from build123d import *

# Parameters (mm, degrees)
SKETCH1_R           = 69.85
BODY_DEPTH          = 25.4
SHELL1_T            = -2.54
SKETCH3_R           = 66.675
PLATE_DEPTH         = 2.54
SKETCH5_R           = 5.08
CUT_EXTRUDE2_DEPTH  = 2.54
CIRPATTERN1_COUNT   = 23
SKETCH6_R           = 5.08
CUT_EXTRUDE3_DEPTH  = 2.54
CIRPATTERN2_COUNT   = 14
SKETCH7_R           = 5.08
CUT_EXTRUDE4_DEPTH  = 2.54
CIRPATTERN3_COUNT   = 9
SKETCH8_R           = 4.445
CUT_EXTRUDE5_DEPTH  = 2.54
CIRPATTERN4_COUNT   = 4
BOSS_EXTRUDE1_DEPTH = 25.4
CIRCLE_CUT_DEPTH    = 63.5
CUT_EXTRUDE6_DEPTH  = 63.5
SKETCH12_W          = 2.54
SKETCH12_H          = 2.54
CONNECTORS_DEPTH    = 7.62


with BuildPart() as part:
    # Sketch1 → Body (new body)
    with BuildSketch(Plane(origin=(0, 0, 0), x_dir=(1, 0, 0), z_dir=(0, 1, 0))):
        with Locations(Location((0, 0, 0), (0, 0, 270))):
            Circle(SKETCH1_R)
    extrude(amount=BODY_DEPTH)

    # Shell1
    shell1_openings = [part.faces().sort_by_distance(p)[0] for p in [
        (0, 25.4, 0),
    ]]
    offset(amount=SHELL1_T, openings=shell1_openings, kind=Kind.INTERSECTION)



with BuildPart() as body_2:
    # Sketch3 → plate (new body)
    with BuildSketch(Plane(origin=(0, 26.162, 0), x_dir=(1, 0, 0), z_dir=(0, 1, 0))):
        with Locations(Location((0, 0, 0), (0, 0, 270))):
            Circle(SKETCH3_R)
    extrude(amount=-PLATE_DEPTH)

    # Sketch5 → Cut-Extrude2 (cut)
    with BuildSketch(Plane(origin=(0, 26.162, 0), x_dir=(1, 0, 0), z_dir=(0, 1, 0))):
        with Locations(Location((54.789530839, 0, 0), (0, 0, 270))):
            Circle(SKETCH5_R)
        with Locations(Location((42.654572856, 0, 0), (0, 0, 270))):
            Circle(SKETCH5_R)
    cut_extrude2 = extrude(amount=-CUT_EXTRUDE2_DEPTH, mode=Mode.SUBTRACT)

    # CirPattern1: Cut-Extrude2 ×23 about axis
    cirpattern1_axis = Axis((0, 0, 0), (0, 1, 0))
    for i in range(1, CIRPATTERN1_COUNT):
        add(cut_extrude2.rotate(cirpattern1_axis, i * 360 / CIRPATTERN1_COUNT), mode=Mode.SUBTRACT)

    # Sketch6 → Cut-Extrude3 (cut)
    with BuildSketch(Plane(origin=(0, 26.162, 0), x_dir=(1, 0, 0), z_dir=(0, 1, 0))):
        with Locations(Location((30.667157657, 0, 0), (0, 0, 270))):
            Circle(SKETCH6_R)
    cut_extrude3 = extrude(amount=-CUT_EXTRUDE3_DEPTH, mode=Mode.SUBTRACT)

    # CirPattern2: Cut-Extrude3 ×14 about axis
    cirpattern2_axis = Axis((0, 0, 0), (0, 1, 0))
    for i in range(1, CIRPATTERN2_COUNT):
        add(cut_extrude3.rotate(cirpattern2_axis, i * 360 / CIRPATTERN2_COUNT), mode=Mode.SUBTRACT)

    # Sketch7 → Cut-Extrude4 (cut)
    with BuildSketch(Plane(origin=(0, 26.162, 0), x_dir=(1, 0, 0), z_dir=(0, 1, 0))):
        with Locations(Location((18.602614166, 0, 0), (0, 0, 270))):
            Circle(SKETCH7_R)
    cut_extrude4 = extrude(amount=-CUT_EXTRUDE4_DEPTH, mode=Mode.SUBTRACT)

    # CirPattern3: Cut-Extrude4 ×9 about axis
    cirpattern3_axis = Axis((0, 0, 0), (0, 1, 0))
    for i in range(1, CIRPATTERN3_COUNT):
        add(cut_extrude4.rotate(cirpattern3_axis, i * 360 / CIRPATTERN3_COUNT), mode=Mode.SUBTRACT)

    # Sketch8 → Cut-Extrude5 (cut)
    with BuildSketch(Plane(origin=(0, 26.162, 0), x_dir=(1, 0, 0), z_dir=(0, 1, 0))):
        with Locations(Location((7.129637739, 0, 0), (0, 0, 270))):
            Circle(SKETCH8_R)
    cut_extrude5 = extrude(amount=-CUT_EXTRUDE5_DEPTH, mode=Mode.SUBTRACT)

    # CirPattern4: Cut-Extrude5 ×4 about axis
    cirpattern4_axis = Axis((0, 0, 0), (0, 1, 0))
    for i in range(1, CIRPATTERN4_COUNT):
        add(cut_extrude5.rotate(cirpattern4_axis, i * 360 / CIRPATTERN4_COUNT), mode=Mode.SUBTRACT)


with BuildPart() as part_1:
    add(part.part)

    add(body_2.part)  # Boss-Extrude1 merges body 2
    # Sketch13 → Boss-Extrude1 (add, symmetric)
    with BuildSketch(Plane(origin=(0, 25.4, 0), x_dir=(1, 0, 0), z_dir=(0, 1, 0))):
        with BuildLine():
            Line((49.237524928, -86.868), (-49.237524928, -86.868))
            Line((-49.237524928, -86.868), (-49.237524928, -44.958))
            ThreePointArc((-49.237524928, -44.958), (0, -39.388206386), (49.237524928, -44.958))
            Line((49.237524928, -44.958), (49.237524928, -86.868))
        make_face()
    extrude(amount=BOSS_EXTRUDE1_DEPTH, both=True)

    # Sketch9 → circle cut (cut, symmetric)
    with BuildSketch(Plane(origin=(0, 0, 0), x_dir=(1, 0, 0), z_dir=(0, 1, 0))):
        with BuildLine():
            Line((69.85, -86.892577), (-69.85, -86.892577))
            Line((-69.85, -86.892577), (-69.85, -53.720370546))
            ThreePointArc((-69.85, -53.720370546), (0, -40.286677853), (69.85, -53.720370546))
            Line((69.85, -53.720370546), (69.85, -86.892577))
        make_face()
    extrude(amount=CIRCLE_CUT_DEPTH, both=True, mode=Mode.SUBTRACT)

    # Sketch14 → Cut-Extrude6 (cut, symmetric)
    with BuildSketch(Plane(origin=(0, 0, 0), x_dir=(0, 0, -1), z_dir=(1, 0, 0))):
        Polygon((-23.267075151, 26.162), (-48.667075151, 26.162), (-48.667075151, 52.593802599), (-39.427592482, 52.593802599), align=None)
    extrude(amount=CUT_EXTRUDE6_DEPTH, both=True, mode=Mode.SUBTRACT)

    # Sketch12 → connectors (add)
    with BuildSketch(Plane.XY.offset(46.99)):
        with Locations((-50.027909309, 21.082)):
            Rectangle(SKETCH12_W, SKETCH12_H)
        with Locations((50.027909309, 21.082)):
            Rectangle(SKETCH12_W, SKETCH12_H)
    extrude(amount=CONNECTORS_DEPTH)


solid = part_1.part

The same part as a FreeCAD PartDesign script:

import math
import FreeCAD as App
import Part
import Sketcher
Q = App.Units.Quantity


def faces_at(feature, points):
    """Names of the faces that lie closest to the given points."""
    faces = feature.Shape.Faces
    near = lambda p: min(range(len(faces)), key=lambda i: faces[i].distToShape(Part.Vertex(*p))[0])
    return sorted({f"Face{near(p) + 1}" for p in points})

doc = App.newDocument("Part")
body = doc.addObject("PartDesign::Body", "Body")

sketch1 = body.newObject("Sketcher::SketchObject", "Sketch")
sketch1.AttachmentSupport = (doc.getObject("XZ_Plane"), [""])
sketch1.MapMode = "FlatFace"
sketch1.addGeometry(Part.Circle(App.Vector(0, 0, 0), App.Vector(0, 0, 1), 70), False)
sketch1.addConstraint([
    Sketcher.Constraint("Coincident", 0, 3, -1, 1),
    Sketcher.Constraint("Diameter", 0, Q("5.5 in")),
])
pad1 = body.newObject("PartDesign::Pad", "Pad")
pad1.Profile = sketch1
pad1.Length = Q("1 in")
pad1.Reversed = True
doc.recompute()

thickness = body.newObject("PartDesign::Thickness", "Thickness")
thickness.Base = (pad1, faces_at(pad1, [(0, 25.4, 0)]))
thickness.Value = Q("0.1 in")
thickness.Reversed = True
thickness.Join = "Intersection"
body2 = doc.addObject("PartDesign::Body", "Body001")

sketch2 = body2.newObject("Sketcher::SketchObject", "Sketch001")
sketch2.AttachmentSupport = (doc.getObject("XZ_Plane001"), [""])
sketch2.MapMode = "FlatFace"
sketch2.AttachmentOffset = App.Placement(App.Vector(0, 0, -1.03 * 25.4), App.Rotation())
sketch2.addGeometry(Part.Circle(App.Vector(0, 0, 0), App.Vector(0, 0, 1), 67), False)
sketch2.addConstraint([
    Sketcher.Constraint("Coincident", 0, 3, -1, 1),
    Sketcher.Constraint("Diameter", 0, Q("5.25 in")),
])
pad2 = body2.newObject("PartDesign::Pad", "Pad001")
pad2.Profile = sketch2
pad2.Length = Q("0.1 in")

sketch3 = body2.newObject("Sketcher::SketchObject", "Sketch002")
sketch3.AttachmentSupport = (doc.getObject("XZ_Plane001"), [""])
sketch3.MapMode = "FlatFace"
sketch3.AttachmentOffset = App.Placement(App.Vector(0, 0, -1.03 * 25.4), App.Rotation())
sketch3.addGeometry([
    Part.Circle(App.Vector(55, 0, 0), App.Vector(0, 0, 1), 5),
    Part.Circle(App.Vector(43, 0, 0), App.Vector(0, 0, 1), 5),
], False)
sketch3.addConstraint([
    Sketcher.Constraint("Equal", 0, 1),
    Sketcher.Constraint("PointOnObject", 0, 3, -1),
    Sketcher.Constraint("PointOnObject", 1, 3, -1),
    Sketcher.Constraint("Diameter", 0, Q("0.4 in")),
    Sketcher.Constraint("DistanceX", -1, 1, 0, 3, Q("54.789531 mm")),
    Sketcher.Constraint("DistanceX", -1, 1, 1, 3, Q("42.654573 mm")),
])
pocket1 = body2.newObject("PartDesign::Pocket", "Pocket")
pocket1.Profile = sketch3
pocket1.Length = Q("0.1 in")
pocket1.Reversed = True
doc.recompute()

polarpattern = body2.newObject("PartDesign::PolarPattern", "PolarPattern")
polarpattern.Originals = [pocket1]
polarpattern.Axis = (doc.getObject("Y_Axis001"), [""])
polarpattern.Angle = 360
polarpattern.Occurrences = 23
body2.Tip = polarpattern

sketch4 = body2.newObject("Sketcher::SketchObject", "Sketch003")
sketch4.AttachmentSupport = (doc.getObject("XZ_Plane001"), [""])
sketch4.MapMode = "FlatFace"
sketch4.AttachmentOffset = App.Placement(App.Vector(0, 0, -1.03 * 25.4), App.Rotation())
sketch4.addGeometry(Part.Circle(App.Vector(31, 0, 0), App.Vector(0, 0, 1), 5), False)
sketch4.addConstraint([
    Sketcher.Constraint("PointOnObject", 0, 3, -1),
    Sketcher.Constraint("Diameter", 0, Q("0.4 in")),
    Sketcher.Constraint("DistanceX", -1, 1, 0, 3, Q("30.667158 mm")),
])
pocket2 = body2.newObject("PartDesign::Pocket", "Pocket001")
pocket2.Profile = sketch4
pocket2.Length = Q("0.1 in")
pocket2.Reversed = True
doc.recompute()

polarpattern2 = body2.newObject("PartDesign::PolarPattern", "PolarPattern001")
polarpattern2.Originals = [pocket2]
polarpattern2.Axis = (doc.getObject("Y_Axis001"), [""])
polarpattern2.Angle = 360
polarpattern2.Occurrences = 14
body2.Tip = polarpattern2

sketch5 = body2.newObject("Sketcher::SketchObject", "Sketch004")
sketch5.AttachmentSupport = (doc.getObject("XZ_Plane001"), [""])
sketch5.MapMode = "FlatFace"
sketch5.AttachmentOffset = App.Placement(App.Vector(0, 0, -1.03 * 25.4), App.Rotation())
sketch5.addGeometry(Part.Circle(App.Vector(19, 0, 0), App.Vector(0, 0, 1), 5), False)
sketch5.addConstraint([
    Sketcher.Constraint("PointOnObject", 0, 3, -1),
    Sketcher.Constraint("Diameter", 0, Q("0.4 in")),
    Sketcher.Constraint("DistanceX", -1, 1, 0, 3, Q("18.602614 mm")),
])
pocket3 = body2.newObject("PartDesign::Pocket", "Pocket002")
pocket3.Profile = sketch5
pocket3.Length = Q("0.1 in")
pocket3.Reversed = True
doc.recompute()

polarpattern3 = body2.newObject("PartDesign::PolarPattern", "PolarPattern002")
polarpattern3.Originals = [pocket3]
polarpattern3.Axis = (doc.getObject("Y_Axis001"), [""])
polarpattern3.Angle = 360
polarpattern3.Occurrences = 9
body2.Tip = polarpattern3

sketch6 = body2.newObject("Sketcher::SketchObject", "Sketch005")
sketch6.AttachmentSupport = (doc.getObject("XZ_Plane001"), [""])
sketch6.MapMode = "FlatFace"
sketch6.AttachmentOffset = App.Placement(App.Vector(0, 0, -1.03 * 25.4), App.Rotation())
sketch6.addGeometry(Part.Circle(App.Vector(7.1, 0, 0), App.Vector(0, 0, 1), 4.4), False)
sketch6.addConstraint([
    Sketcher.Constraint("PointOnObject", 0, 3, -1),
    Sketcher.Constraint("Diameter", 0, Q("0.35 in")),
    Sketcher.Constraint("DistanceX", -1, 1, 0, 3, Q("7.129638 mm")),
])
pocket4 = body2.newObject("PartDesign::Pocket", "Pocket003")
pocket4.Profile = sketch6
pocket4.Length = Q("0.1 in")
pocket4.Reversed = True
doc.recompute()

polarpattern4 = body2.newObject("PartDesign::PolarPattern", "PolarPattern003")
polarpattern4.Originals = [pocket4]
polarpattern4.Axis = (doc.getObject("Y_Axis001"), [""])
polarpattern4.Angle = 360
polarpattern4.Occurrences = 4
body2.Tip = polarpattern4
body.AllowCompound = True
doc.recompute()

boolean = body.newObject("PartDesign::Boolean", "Boolean")
boolean.Type = "Fuse"
boolean.addObjects([body2])

sketch7 = body.newObject("Sketcher::SketchObject", "Sketch006")
sketch7.AttachmentSupport = (doc.getObject("XZ_Plane"), [""])
sketch7.MapMode = "FlatFace"
sketch7.AttachmentOffset = App.Placement(App.Vector(0, 0, -1 * 25.4), App.Rotation())
sketch7.addGeometry([
    Part.LineSegment(App.Vector(-49, 87, 0), App.Vector(49, 87, 0)),
    Part.LineSegment(App.Vector(49, 87, 0), App.Vector(49, 45, 0)),
    Part.ArcOfCircle(Part.Circle(App.Vector(0, 260, 0), App.Vector(0, 0, 1), 220), math.radians(-103), math.radians(-77)),
    Part.LineSegment(App.Vector(-49, 45, 0), App.Vector(-49, 87, 0)),
], False)
sketch7.addConstraint([
    Sketcher.Constraint("Coincident", 0, 2, 1, 1),
    Sketcher.Constraint("Coincident", 1, 2, 2, 2),
    Sketcher.Constraint("Coincident", 2, 1, 3, 1),
    Sketcher.Constraint("Coincident", 3, 2, 0, 1),
    Sketcher.Constraint("Horizontal", 0),
    Sketcher.Constraint("Vertical", 1),
    Sketcher.Constraint("Vertical", 3),
    Sketcher.Constraint("Symmetric", 1, 2, 2, 1, -2),
    Sketcher.Constraint("DistanceY", 1, 2, 1, 1, Q("1.65 in")),
    Sketcher.Constraint("DistanceY", -1, 1, 0, 2, Q("3.42 in")),
    Sketcher.Constraint("Radius", 2, Q("220.417185 mm")),
    Sketcher.Constraint("DistanceX", 0, 1, 0, 2, Q("98.47505 mm")),
])
pad3 = body.newObject("PartDesign::Pad", "Pad002")
pad3.Profile = sketch7
pad3.Length = Q("2 in")
pad3.Midplane = True

sketch8 = body.newObject("Sketcher::SketchObject", "Sketch007")
sketch8.AttachmentSupport = (doc.getObject("XZ_Plane"), [""])
sketch8.MapMode = "FlatFace"
sketch8.addGeometry([
    Part.LineSegment(App.Vector(-70, 87, 0), App.Vector(70, 87, 0)),
    Part.LineSegment(App.Vector(70, 87, 0), App.Vector(70, 54, 0)),
    Part.ArcOfCircle(Part.Circle(App.Vector(0, 229, 0), App.Vector(0, 0, 1), 188), math.radians(-112), math.radians(-68)),
    Part.LineSegment(App.Vector(-70, 54, 0), App.Vector(-70, 87, 0)),
], False)
sketch8.addConstraint([
    Sketcher.Constraint("Coincident", 0, 2, 1, 1),
    Sketcher.Constraint("Coincident", 1, 2, 2, 2),
    Sketcher.Constraint("Coincident", 2, 1, 3, 1),
    Sketcher.Constraint("Coincident", 3, 2, 0, 1),
    Sketcher.Constraint("Horizontal", 0),
    Sketcher.Constraint("Vertical", 1),
    Sketcher.Constraint("Vertical", 3),
    Sketcher.Constraint("Symmetric", 1, 2, 2, 1, -2),
    Sketcher.Constraint("DistanceX", 0, 1, 0, 2, Q("5.5 in")),
    Sketcher.Constraint("DistanceY", -1, 1, 2, 3, Q("9 in")),
    Sketcher.Constraint("Radius", 2, Q("188.313322 mm")),
    Sketcher.Constraint("DistanceY", 1, 2, 1, 1, Q("33.172206 mm")),
])
pocket5 = body.newObject("PartDesign::Pocket", "Pocket004")
pocket5.Profile = sketch8
pocket5.Length = Q("5 in")
pocket5.Midplane = True

sketch9 = body.newObject("Sketcher::SketchObject", "Sketch008")
sketch9.AttachmentSupport = (doc.getObject("YZ_Plane"), [""])
sketch9.MapMode = "FlatFace"
sketch9.addGeometry([
    Part.LineSegment(App.Vector(26, 49, 0), App.Vector(26, 23, 0)),
    Part.LineSegment(App.Vector(26, 23, 0), App.Vector(53, 39, 0)),
    Part.LineSegment(App.Vector(53, 39, 0), App.Vector(53, 49, 0)),
    Part.LineSegment(App.Vector(53, 49, 0), App.Vector(26, 49, 0)),
], False)
sketch9.addConstraint([
    Sketcher.Constraint("Coincident", 0, 2, 1, 1),
    Sketcher.Constraint("Coincident", 1, 2, 2, 1),
    Sketcher.Constraint("Coincident", 2, 2, 3, 1),
    Sketcher.Constraint("Coincident", 3, 2, 0, 1),
    Sketcher.Constraint("Vertical", 0),
    Sketcher.Constraint("Vertical", 2),
    Sketcher.Constraint("Horizontal", 3),
    Sketcher.Constraint("DistanceY", 0, 2, 0, 1, Q("1 in")),
    Sketcher.Constraint("DistanceX", -1, 1, 0, 2, Q("1.03 in")),
    Sketcher.Constraint("Distance", 1, Q("30.98068 mm")),
    Sketcher.Constraint("DistanceX", 3, 2, 3, 1, Q("26.431803 mm")),
    Sketcher.Constraint("DistanceY", -1, 1, 0, 2, Q("23.267075 mm")),
])
pocket6 = body.newObject("PartDesign::Pocket", "Pocket005")
pocket6.Profile = sketch9
pocket6.Length = Q("5 in")
pocket6.Midplane = True

sketch10 = body.newObject("Sketcher::SketchObject", "Sketch009")
sketch10.AttachmentSupport = (doc.getObject("XY_Plane"), [""])
sketch10.MapMode = "FlatFace"
sketch10.AttachmentOffset = App.Placement(App.Vector(0, 0, 1.85 * 25.4), App.Rotation())
sketch10.addGeometry([
    Part.LineSegment(App.Vector(-51.3, 22.4, 0), App.Vector(-51.3, 19.8, 0)),
    Part.LineSegment(App.Vector(-51.3, 19.8, 0), App.Vector(-48.8, 19.8, 0)),
    Part.LineSegment(App.Vector(-48.8, 19.8, 0), App.Vector(-48.8, 22.4, 0)),
    Part.LineSegment(App.Vector(-48.8, 22.4, 0), App.Vector(-51.3, 22.4, 0)),
    Part.LineSegment(App.Vector(48.8, 22.4, 0), App.Vector(48.8, 19.8, 0)),
    Part.LineSegment(App.Vector(48.8, 19.8, 0), App.Vector(51.3, 19.8, 0)),
    Part.LineSegment(App.Vector(51.3, 19.8, 0), App.Vector(51.3, 22.4, 0)),
    Part.LineSegment(App.Vector(51.3, 22.4, 0), App.Vector(48.8, 22.4, 0)),
], False)
sketch10.addConstraint([
    Sketcher.Constraint("Coincident", 0, 2, 1, 1),
    Sketcher.Constraint("Coincident", 1, 2, 2, 1),
    Sketcher.Constraint("Coincident", 2, 2, 3, 1),
    Sketcher.Constraint("Coincident", 3, 2, 0, 1),
    Sketcher.Constraint("Coincident", 4, 2, 5, 1),
    Sketcher.Constraint("Coincident", 5, 2, 6, 1),
    Sketcher.Constraint("Coincident", 6, 2, 7, 1),
    Sketcher.Constraint("Coincident", 7, 2, 4, 1),
    Sketcher.Constraint("Vertical", 0),
    Sketcher.Constraint("Horizontal", 1),
    Sketcher.Constraint("Vertical", 2),
    Sketcher.Constraint("Horizontal", 3),
    Sketcher.Constraint("Vertical", 4),
    Sketcher.Constraint("Horizontal", 5),
    Sketcher.Constraint("Vertical", 6),
    Sketcher.Constraint("Horizontal", 7),
    Sketcher.Constraint("Symmetric", 1, 2, 4, 2, -2),
    Sketcher.Constraint("Symmetric", 3, 2, 6, 2, -2),
    Sketcher.Constraint("Equal", 7, 0),
    Sketcher.Constraint("DistanceX", 1, 1, 1, 2, Q("0.1 in")),
    Sketcher.Constraint("DistanceY", -1, 1, 0, 2, Q("0.78 in")),
    Sketcher.Constraint("DistanceX", 0, 2, -1, 1, Q("51.297909 mm")),
])
pad4 = body.newObject("PartDesign::Pad", "Pad003")
pad4.Profile = sketch10
pad4.Length = Q("0.3 in")

doc.recompute()
